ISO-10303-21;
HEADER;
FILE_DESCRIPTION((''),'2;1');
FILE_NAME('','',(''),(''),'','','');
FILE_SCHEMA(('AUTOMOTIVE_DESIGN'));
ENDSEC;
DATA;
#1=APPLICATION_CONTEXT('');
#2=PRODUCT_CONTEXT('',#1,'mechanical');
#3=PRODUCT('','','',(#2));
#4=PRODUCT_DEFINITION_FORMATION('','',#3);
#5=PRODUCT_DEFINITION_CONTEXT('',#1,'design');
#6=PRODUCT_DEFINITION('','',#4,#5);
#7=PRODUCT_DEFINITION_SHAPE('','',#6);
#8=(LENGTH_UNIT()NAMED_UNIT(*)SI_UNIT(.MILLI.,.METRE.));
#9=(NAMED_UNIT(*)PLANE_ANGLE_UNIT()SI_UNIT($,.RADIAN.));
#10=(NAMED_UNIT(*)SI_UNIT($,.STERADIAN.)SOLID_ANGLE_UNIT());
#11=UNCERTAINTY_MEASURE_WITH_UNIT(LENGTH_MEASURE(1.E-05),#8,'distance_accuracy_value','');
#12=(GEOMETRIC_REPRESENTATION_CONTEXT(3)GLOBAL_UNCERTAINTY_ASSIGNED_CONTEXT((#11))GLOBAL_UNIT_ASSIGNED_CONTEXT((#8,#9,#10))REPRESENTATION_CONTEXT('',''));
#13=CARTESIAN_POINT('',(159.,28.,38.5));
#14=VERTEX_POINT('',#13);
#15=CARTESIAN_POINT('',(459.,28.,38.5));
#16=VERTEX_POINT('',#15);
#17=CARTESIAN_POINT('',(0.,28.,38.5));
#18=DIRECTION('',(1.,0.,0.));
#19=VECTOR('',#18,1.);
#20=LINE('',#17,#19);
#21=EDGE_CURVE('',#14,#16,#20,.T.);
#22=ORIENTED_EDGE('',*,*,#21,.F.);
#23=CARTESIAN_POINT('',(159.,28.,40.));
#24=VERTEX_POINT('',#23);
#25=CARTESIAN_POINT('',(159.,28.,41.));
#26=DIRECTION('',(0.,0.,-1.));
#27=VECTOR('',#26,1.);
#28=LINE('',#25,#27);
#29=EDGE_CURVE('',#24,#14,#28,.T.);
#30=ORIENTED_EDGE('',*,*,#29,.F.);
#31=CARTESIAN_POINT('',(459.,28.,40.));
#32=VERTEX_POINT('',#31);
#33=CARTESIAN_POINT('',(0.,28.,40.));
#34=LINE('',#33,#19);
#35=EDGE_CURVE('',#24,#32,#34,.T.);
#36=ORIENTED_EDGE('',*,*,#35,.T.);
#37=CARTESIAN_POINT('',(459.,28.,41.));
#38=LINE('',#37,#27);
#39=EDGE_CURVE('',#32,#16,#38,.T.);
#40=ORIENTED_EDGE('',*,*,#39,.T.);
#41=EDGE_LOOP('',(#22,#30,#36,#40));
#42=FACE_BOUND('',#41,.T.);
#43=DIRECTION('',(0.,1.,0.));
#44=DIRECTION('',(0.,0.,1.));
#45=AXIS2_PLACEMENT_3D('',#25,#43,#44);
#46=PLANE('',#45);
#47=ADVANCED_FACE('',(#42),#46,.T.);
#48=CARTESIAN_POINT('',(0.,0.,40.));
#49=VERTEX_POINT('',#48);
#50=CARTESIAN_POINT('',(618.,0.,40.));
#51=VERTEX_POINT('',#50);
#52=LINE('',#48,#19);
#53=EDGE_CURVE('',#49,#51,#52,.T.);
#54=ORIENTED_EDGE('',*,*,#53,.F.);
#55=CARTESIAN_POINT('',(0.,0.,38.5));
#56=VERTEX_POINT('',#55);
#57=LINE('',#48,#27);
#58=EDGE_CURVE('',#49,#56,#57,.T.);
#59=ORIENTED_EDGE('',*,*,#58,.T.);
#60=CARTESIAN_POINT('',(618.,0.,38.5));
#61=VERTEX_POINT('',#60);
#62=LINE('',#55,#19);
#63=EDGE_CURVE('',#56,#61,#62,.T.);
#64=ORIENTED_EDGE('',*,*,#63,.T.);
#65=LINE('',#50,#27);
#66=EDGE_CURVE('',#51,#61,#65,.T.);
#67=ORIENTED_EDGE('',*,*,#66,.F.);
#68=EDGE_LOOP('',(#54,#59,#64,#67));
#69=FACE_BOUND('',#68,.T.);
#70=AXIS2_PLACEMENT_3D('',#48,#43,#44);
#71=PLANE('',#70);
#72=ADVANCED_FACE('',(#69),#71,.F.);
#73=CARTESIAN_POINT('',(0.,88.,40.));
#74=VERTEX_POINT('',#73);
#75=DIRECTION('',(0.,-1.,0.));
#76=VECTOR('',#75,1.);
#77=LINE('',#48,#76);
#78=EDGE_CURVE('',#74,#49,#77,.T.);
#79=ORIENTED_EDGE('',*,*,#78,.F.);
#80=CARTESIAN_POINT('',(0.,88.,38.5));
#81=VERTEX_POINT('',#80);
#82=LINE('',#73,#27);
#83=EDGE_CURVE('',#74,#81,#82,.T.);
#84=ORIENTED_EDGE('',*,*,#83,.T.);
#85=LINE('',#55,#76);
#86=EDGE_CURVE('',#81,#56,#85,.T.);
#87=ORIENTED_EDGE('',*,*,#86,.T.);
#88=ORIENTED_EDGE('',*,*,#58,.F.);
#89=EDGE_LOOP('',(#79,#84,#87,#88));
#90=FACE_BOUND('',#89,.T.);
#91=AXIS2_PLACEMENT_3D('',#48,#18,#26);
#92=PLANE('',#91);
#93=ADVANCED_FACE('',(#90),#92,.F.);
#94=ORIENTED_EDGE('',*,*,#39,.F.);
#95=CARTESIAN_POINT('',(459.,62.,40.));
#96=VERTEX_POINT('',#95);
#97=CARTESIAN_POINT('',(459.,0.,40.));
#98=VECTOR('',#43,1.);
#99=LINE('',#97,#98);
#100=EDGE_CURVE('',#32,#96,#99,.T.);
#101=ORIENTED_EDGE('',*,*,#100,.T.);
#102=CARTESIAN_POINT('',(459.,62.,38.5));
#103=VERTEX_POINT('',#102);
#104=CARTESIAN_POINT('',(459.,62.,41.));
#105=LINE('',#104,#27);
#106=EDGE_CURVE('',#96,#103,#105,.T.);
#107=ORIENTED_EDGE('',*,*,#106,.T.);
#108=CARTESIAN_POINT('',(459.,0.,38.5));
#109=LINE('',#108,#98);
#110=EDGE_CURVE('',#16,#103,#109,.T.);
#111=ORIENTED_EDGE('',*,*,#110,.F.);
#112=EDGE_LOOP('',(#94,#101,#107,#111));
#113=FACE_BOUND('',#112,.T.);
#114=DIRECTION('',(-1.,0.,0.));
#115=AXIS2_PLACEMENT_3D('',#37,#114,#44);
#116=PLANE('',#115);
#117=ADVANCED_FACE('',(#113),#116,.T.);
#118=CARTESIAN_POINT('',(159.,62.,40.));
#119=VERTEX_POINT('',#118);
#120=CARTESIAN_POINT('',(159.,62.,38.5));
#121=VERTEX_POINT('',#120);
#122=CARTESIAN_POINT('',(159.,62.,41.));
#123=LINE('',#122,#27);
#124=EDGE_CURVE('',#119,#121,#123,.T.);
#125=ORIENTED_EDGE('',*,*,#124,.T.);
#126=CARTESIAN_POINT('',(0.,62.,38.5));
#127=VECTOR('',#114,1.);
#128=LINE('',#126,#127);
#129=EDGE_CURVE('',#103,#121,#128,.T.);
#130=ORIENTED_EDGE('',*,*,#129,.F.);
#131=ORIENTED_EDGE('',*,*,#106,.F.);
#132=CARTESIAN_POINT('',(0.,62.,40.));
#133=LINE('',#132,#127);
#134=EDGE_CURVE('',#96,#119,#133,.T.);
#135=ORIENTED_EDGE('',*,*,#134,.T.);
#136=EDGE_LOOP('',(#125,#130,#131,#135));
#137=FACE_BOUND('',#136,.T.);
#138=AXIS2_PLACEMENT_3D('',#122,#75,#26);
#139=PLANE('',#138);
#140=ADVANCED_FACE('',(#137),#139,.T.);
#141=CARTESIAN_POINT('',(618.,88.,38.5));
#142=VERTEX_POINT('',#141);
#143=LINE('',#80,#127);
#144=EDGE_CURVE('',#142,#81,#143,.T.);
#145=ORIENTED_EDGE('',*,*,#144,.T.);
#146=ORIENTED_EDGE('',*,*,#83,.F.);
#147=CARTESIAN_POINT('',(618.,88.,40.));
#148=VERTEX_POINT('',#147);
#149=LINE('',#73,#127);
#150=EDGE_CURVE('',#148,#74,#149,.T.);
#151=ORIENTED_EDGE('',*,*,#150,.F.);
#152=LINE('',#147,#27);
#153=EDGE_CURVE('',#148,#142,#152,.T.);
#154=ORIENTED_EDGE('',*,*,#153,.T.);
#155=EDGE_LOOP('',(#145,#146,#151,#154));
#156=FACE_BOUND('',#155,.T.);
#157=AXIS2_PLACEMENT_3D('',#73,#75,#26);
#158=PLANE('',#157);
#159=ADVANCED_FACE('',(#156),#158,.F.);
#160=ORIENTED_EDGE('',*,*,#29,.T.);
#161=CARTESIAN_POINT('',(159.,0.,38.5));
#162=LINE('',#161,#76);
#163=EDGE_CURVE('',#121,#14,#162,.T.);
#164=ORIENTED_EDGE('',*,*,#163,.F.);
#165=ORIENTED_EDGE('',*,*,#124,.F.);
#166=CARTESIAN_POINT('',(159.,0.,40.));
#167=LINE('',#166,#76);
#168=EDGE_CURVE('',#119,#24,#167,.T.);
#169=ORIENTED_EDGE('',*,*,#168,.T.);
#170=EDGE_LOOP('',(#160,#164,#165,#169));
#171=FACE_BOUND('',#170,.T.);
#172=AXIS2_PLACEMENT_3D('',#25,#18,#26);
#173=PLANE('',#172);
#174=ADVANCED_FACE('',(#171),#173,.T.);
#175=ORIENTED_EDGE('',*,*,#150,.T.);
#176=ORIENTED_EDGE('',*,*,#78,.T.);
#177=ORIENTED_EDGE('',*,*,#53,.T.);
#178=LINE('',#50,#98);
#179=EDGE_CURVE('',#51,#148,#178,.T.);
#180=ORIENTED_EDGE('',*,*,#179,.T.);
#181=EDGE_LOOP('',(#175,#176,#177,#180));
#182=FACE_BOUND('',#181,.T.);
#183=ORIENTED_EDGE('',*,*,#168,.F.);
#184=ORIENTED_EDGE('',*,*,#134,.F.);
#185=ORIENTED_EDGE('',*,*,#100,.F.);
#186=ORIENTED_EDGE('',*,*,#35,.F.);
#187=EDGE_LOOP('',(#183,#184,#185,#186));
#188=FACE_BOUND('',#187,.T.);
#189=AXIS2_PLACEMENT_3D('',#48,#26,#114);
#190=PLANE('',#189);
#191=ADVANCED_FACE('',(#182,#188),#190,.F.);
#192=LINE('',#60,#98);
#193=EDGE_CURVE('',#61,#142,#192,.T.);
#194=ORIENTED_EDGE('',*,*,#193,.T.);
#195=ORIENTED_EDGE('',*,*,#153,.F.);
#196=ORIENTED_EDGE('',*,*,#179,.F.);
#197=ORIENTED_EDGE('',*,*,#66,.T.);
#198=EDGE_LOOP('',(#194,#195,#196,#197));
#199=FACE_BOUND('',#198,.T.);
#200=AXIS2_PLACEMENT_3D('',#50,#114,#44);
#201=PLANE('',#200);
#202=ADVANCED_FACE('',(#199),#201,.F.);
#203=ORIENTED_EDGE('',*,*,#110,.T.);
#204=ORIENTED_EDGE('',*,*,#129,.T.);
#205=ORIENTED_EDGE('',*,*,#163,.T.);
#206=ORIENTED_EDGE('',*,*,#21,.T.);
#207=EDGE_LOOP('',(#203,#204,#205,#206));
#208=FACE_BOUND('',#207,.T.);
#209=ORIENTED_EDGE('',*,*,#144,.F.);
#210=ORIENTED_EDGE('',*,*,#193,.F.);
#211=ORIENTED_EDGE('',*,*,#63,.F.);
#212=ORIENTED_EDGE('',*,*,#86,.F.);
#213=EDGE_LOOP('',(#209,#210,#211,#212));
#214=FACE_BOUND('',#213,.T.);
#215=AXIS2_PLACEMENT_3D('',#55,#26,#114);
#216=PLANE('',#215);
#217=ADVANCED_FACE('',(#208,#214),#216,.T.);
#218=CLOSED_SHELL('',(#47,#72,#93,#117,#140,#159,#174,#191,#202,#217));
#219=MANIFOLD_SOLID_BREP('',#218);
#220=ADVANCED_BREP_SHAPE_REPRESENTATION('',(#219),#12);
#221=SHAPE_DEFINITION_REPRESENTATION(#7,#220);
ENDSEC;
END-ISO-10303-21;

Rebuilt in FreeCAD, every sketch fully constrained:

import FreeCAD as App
import Part
import Sketcher

V = App.Vector

doc = App.newDocument("Part")
body = doc.addObject("PartDesign::Body", "Body")

# Sketch on XY plane
sketch1 = body.newObject("Sketcher::SketchObject", "Sketch")
sketch1.AttachmentSupport = (doc.getObject("XY_Plane"), [""])
sketch1.MapMode = "FlatFace"
sketch1.AttachmentOffset = App.Placement(V(0, 0, 38.5), App.Rotation())
sketch1.addGeometry([
    Part.LineSegment(V(0, 88, 0), V(0, 0, 0)),
    Part.LineSegment(V(0, 0, 0), V(618, 0, 0)),
    Part.LineSegment(V(618, 0, 0), V(618, 88, 0)),
    Part.LineSegment(V(618, 88, 0), V(0, 88, 0)),
], False)
sketch1.addConstraint([
    Sketcher.Constraint("Coincident", 0, 2, 1, 1),
    Sketcher.Constraint("Coincident", 1, 2, 2, 1),
    Sketcher.Constraint("Coincident", 2, 2, 3, 1),
    Sketcher.Constraint("Coincident", 3, 2, 0, 1),
    Sketcher.Constraint("Vertical", 0),
    Sketcher.Constraint("Horizontal", 1),
    Sketcher.Constraint("Vertical", 2),
    Sketcher.Constraint("Horizontal", 3),
    Sketcher.Constraint("Coincident", 0, 2, -1, 1),
    Sketcher.Constraint("DistanceX", 1, 1, 1, 2, 618.0),
    Sketcher.Constraint("DistanceY", 0, 2, 0, 1, 88.0),
])
pad1 = body.newObject("PartDesign::Pad", "Pad")
pad1.Profile = sketch1
pad1.Length = 1.5

# Sketch on XY plane
sketch2 = body.newObject("Sketcher::SketchObject", "Sketch001")
sketch2.AttachmentSupport = (doc.getObject("XY_Plane"), [""])
sketch2.MapMode = "FlatFace"
sketch2.AttachmentOffset = App.Placement(V(0, 0, 27), App.Rotation())
sketch2.addGeometry([
    Part.LineSegment(V(159, 62, 0), V(159, 28, 0)),
    Part.LineSegment(V(159, 28, 0), V(459, 28, 0)),
    Part.LineSegment(V(459, 28, 0), V(459, 62, 0)),
    Part.LineSegment(V(459, 62, 0), V(159, 62, 0)),
], False)
sketch2.addConstraint([
    Sketcher.Constraint("Coincident", 0, 2, 1, 1),
    Sketcher.Constraint("Coincident", 1, 2, 2, 1),
    Sketcher.Constraint("Coincident", 2, 2, 3, 1),
    Sketcher.Constraint("Coincident", 3, 2, 0, 1),
    Sketcher.Constraint("Vertical", 0),
    Sketcher.Constraint("Horizontal", 1),
    Sketcher.Constraint("Vertical", 2),
    Sketcher.Constraint("Horizontal", 3),
    Sketcher.Constraint("DistanceX", 1, 1, 1, 2, 300.0),
    Sketcher.Constraint("DistanceY", 0, 2, 0, 1, 34.0),
    Sketcher.Constraint("DistanceX", -1, 1, 0, 2, 159.0),
    Sketcher.Constraint("DistanceY", -1, 1, 0, 2, 28.0),
])
pocket1 = body.newObject("PartDesign::Pocket", "Pocket")
pocket1.Profile = sketch2
pocket1.Length = 14
pocket1.Reversed = True

doc.recompute()
